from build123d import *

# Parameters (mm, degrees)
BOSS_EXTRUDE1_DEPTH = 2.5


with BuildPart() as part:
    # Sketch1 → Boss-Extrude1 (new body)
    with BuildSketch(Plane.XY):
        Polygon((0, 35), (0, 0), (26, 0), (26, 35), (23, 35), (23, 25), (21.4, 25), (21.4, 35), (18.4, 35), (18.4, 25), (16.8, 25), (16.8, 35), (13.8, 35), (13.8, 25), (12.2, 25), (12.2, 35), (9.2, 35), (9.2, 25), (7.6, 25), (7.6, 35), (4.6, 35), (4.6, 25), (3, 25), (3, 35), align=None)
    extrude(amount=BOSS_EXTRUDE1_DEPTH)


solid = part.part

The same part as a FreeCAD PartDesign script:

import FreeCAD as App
import Part
import Sketcher
from FreeCAD import Vector
Q = App.Units.Quantity


def add_polygon(sketch, points):
    """Adds a closed chain of lines whose ends are joined by coincident constraints."""
    first, n = sketch.GeometryCount, len(points)
    for a, b in zip(points, points[1:] + points[:1]):
        sketch.addGeometry(Part.LineSegment(App.Vector(*a, 0), App.Vector(*b, 0)), False)
    for i in range(n):
        sketch.addConstraint(Sketcher.Constraint("Coincident", first + i, 2, first + (i + 1) % n, 1))

doc = App.newDocument("Part")
params = doc.addObject("Spreadsheet::Sheet", "Params")
for row, (alias, value) in enumerate([
    ("sketch1_width", "26 mm"),
    ("sketch1_width2", "3 mm"),
    ("sketch1_height", "35 mm"),
    ("sketch1_height2", "10 mm"),
    ("pad1_length", "2.5 mm"),
], start=1):
    params.set(f"A{row}", alias)
    params.set(f"B{row}", "=" + value)
    params.setAlias(f"B{row}", alias)

body = doc.addObject("PartDesign::Body", "Body")

sketch1 = body.newObject("Sketcher::SketchObject", "Sketch")
sketch1.AttachmentSupport = (doc.getObject("XY_Plane"), [""])
sketch1.MapMode = "FlatFace"
add_polygon(sketch1, [(0, 35), (0, 0), (26, 0), (26, 35), (23, 35), (23, 25), (21.4, 25), (21.4, 35), (18.4, 35), (18.4, 25), (16.8, 25), (16.8, 35), (13.8, 35), (13.8, 25), (12.2, 25), (12.2, 35), (9.2, 35), (9.2, 25), (7.6, 25), (7.6, 35), (4.6, 35), (4.6, 25), (3, 25), (3, 35)])
sketch1.addConstraint([
    Sketcher.Constraint("Vertical", 0),
    Sketcher.Constraint("Horizontal", 1),
    Sketcher.Constraint("Vertical", 2),
    Sketcher.Constraint("Horizontal", 3),
    Sketcher.Constraint("Vertical", 4),
    Sketcher.Constraint("Horizontal", 5),
    Sketcher.Constraint("Vertical", 6),
    Sketcher.Constraint("Horizontal", 7),
    Sketcher.Constraint("Vertical", 8),
    Sketcher.Constraint("Horizontal", 9),
    Sketcher.Constraint("Vertical", 10),
    Sketcher.Constraint("Horizontal", 11),
    Sketcher.Constraint("Vertical", 12),
    Sketcher.Constraint("Horizontal", 13),
    Sketcher.Constraint("Vertical", 14),
    Sketcher.Constraint("Horizontal", 15),
    Sketcher.Constraint("Vertical", 16),
    Sketcher.Constraint("Horizontal", 17),
    Sketcher.Constraint("Vertical", 18),
    Sketcher.Constraint("Horizontal", 19),
    Sketcher.Constraint("Vertical", 20),
    Sketcher.Constraint("Horizontal", 21),
    Sketcher.Constraint("Vertical", 22),
    Sketcher.Constraint("Horizontal", 23),
    Sketcher.Constraint("Coincident", 0, 2, -1, 1),
    Sketcher.Constraint("Horizontal", 3, 2, 6, 2),
    Sketcher.Constraint("Horizontal", 5, 2, 8, 2),
    Sketcher.Constraint("Horizontal", 7, 2, 10, 2),
    Sketcher.Constraint("Horizontal", 9, 2, 12, 2),
    Sketcher.Constraint("Horizontal", 11, 2, 14, 2),
    Sketcher.Constraint("Horizontal", 13, 2, 16, 2),
    Sketcher.Constraint("Horizontal", 15, 2, 18, 2),
    Sketcher.Constraint("Horizontal", 17, 2, 20, 2),
    Sketcher.Constraint("Horizontal", 19, 2, 22, 2),
    Sketcher.Constraint("Equal", 3, 7),
    Sketcher.Constraint("Equal", 5, 9),
    Sketcher.Constraint("Equal", 7, 11),
    Sketcher.Constraint("Equal", 9, 13),
    Sketcher.Constraint("Equal", 11, 15),
    Sketcher.Constraint("Equal", 13, 17),
    Sketcher.Constraint("Equal", 15, 19),
    Sketcher.Constraint("Equal", 17, 21),
    Sketcher.Constraint("Equal", 19, 23),
    Sketcher.Constraint("DistanceX", 1, 1, 1, 2, Q("26 mm")),
    Sketcher.Constraint("DistanceX", 3, 2, 3, 1, Q("3 mm")),
    Sketcher.Constraint("DistanceY", 0, 2, 0, 1, Q("35 mm")),
    Sketcher.Constraint("DistanceY", 4, 2, 4, 1, Q("10 mm")),
])
sketch1.setExpression("Constraints[67]", "Params.sketch1_width")
sketch1.setExpression("Constraints[68]", "Params.sketch1_width2")
sketch1.setExpression("Constraints[69]", "Params.sketch1_height")
sketch1.setExpression("Constraints[70]", "Params.sketch1_height2")
pad1 = body.newObject("PartDesign::Pad", "Pad")
pad1.Profile = sketch1
pad1.setExpression("Length", "Params.pad1_length")

doc.recompute()
